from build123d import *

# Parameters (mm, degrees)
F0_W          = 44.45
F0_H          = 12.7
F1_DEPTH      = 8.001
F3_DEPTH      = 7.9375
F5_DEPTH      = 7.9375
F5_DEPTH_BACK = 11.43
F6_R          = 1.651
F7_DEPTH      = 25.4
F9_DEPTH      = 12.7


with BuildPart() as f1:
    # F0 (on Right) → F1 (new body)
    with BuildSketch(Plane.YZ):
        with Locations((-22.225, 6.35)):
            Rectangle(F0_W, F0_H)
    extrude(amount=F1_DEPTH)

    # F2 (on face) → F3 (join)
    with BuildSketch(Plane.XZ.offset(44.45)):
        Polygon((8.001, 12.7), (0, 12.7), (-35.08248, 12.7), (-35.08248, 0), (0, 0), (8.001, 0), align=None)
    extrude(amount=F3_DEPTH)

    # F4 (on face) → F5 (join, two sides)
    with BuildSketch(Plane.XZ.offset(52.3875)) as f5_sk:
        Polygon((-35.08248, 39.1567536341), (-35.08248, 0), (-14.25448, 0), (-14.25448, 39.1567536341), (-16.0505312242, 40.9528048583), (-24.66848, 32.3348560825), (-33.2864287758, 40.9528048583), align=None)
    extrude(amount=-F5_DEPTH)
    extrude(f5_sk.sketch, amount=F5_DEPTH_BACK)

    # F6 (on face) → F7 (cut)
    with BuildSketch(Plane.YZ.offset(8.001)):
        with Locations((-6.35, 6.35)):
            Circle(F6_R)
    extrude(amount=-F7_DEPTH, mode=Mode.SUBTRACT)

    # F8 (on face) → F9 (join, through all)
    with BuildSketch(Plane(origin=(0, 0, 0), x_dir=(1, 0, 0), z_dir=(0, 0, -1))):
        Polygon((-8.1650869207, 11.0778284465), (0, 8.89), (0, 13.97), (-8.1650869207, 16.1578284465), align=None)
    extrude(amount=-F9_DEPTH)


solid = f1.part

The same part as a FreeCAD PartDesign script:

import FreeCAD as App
import Part
import Sketcher
from FreeCAD import Vector
Q = App.Units.Quantity


def add_polygon(sketch, points):
    """Adds a closed chain of lines whose ends are joined by coincident constraints."""
    first, n = sketch.GeometryCount, len(points)
    for a, b in zip(points, points[1:] + points[:1]):
        sketch.addGeometry(Part.LineSegment(App.Vector(*a, 0), App.Vector(*b, 0)), False)
    for i in range(n):
        sketch.addConstraint(Sketcher.Constraint("Coincident", first + i, 2, first + (i + 1) % n, 1))

doc = App.newDocument("Part")
body = doc.addObject("PartDesign::Body", "Body")

sketch1 = body.newObject("Sketcher::SketchObject", "Sketch")
sketch1.AttachmentSupport = (doc.getObject("YZ_Plane"), [""])
sketch1.MapMode = "FlatFace"
add_polygon(sketch1, [(-44.45, 12.7), (-44.45, 0), (0, 0), (0, 12.7)])
sketch1.addConstraint([
    Sketcher.Constraint("Vertical", 0),
    Sketcher.Constraint("Horizontal", 1),
    Sketcher.Constraint("Vertical", 2),
    Sketcher.Constraint("Horizontal", 3),
    Sketcher.Constraint("Coincident", 1, 2, -1, 1),
    Sketcher.Constraint("DistanceY", 0, 2, 0, 1, Q("0.5 in")),
    Sketcher.Constraint("DistanceX", 1, 1, 1, 2, Q("1.75 in")),
])
pad1 = body.newObject("PartDesign::Pad", "Pad")
pad1.Profile = sketch1
pad1.Length = Q("0.315 in")

sketch2 = body.newObject("Sketcher::SketchObject", "Sketch001")
sketch2.AttachmentSupport = (doc.getObject("XZ_Plane"), [""])
sketch2.MapMode = "FlatFace"
sketch2.AttachmentOffset = App.Placement(Vector(0, 0, 1.75 * 25.4), App.Rotation())
add_polygon(sketch2, [(8.001, 12.7), (-35.08248, 12.7), (-35.08248, 0), (8.001, 0)])
sketch2.addConstraint([
    Sketcher.Constraint("Horizontal", 0),
    Sketcher.Constraint("Vertical", 1),
    Sketcher.Constraint("Horizontal", 2),
    Sketcher.Constraint("Vertical", 3),
    Sketcher.Constraint("PointOnObject", 1, 2, -1),
    Sketcher.Constraint("DistanceY", 1, 2, 1, 1, Q("0.5 in")),
    Sketcher.Constraint("DistanceX", 0, 2, 0, 1, Q("1.6962 in")),
    Sketcher.Constraint("DistanceX", -1, 1, 2, 2, Q("0.315 in")),
])
pad2 = body.newObject("PartDesign::Pad", "Pad001")
pad2.Profile = sketch2
pad2.Length = Q("0.3125 in")

sketch3 = body.newObject("Sketcher::SketchObject", "Sketch002")
sketch3.AttachmentSupport = (doc.getObject("XZ_Plane"), [""])
sketch3.MapMode = "FlatFace"
sketch3.AttachmentOffset = App.Placement(Vector(0, 0, 2.0625 * 25.4), App.Rotation())
add_polygon(sketch3, [(-35.08248, 39.156754), (-35.08248, 0), (-14.25448, 0), (-14.25448, 39.156754), (-16.050531, 40.952805), (-24.66848, 32.334856), (-33.286429, 40.952805)])
sketch3.addConstraint([
    Sketcher.Constraint("Vertical", 0),
    Sketcher.Constraint("Horizontal", 1),
    Sketcher.Constraint("Vertical", 2),
    Sketcher.Constraint("PointOnObject", 0, 2, -1),
    Sketcher.Constraint("Perpendicular", 3, 4),
    Sketcher.Constraint("Perpendicular", 4, 5),
    Sketcher.Constraint("Perpendicular", 5, 6),
    Sketcher.Constraint("Horizontal", 3, 2, 5, 2),
    Sketcher.Constraint("Horizontal", 2, 2, 6, 2),
    Sketcher.Constraint("Equal", 4, 5),
    Sketcher.Constraint("Distance", 3, Q("0.1 in")),
    Sketcher.Constraint("DistanceX", 1, 1, 1, 2, Q("0.82 in")),
    Sketcher.Constraint("DistanceX", 0, 2, -1, 1, Q("1.3812 in")),
    Sketcher.Constraint("DistanceY", 0, 2, 0, 1, 39.156754),
])
pad3 = body.newObject("PartDesign::Pad", "Pad002")
pad3.Profile = sketch3
pad3.Type = "TwoLengths"
pad3.Length = Q("0.3125 in")
pad3.Length2 = Q("0.45 in")
pad3.Reversed = True

sketch4 = body.newObject("Sketcher::SketchObject", "Sketch003")
sketch4.AttachmentSupport = (doc.getObject("YZ_Plane"), [""])
sketch4.MapMode = "FlatFace"
sketch4.AttachmentOffset = App.Placement(Vector(0, 0, 0.315 * 25.4), App.Rotation())
sketch4.addGeometry(Part.Circle(Vector(-6.35, 6.35, 0), Vector(0, 0, 1), 1.651), False)
sketch4.addConstraint([
    Sketcher.Constraint("Diameter", 0, Q("0.13 in")),
    Sketcher.Constraint("DistanceX", 0, 3, -1, 1, Q("0.25 in")),
    Sketcher.Constraint("DistanceY", -1, 1, 0, 3, Q("0.25 in")),
])
pocket1 = body.newObject("PartDesign::Pocket", "Pocket")
pocket1.Profile = sketch4
pocket1.Length = Q("1 in")

sketch5 = body.newObject("Sketcher::SketchObject", "Sketch004")
sketch5.AttachmentSupport = (doc.getObject("XY_Plane"), [""])
sketch5.MapMode = "FlatFace"
add_polygon(sketch5, [(-8.165087, -11.077828), (0, -8.89), (0, -13.97), (-8.165087, -16.157828)])
sketch5.addConstraint([
    Sketcher.Constraint("Vertical", 1),
    Sketcher.Constraint("Vertical", 3),
    Sketcher.Constraint("PointOnObject", 0, 2, -2),
    Sketcher.Constraint("Parallel", 0, 2),
    Sketcher.Constraint("DistanceY", 1, 2, 1, 1, Q("0.2 in")),
    Sketcher.Constraint("Angle", 0, Q("15 deg")),
    Sketcher.Constraint("DistanceY", 0, 2, -1, 1, Q("0.35 in")),
    Sketcher.Constraint("Distance", 0, Q("0.3328 in")),
])
pad4 = body.newObject("PartDesign::Pad", "Pad003")
pad4.Profile = sketch5
pad4.Length = Q("0.5 in")

doc.recompute()
